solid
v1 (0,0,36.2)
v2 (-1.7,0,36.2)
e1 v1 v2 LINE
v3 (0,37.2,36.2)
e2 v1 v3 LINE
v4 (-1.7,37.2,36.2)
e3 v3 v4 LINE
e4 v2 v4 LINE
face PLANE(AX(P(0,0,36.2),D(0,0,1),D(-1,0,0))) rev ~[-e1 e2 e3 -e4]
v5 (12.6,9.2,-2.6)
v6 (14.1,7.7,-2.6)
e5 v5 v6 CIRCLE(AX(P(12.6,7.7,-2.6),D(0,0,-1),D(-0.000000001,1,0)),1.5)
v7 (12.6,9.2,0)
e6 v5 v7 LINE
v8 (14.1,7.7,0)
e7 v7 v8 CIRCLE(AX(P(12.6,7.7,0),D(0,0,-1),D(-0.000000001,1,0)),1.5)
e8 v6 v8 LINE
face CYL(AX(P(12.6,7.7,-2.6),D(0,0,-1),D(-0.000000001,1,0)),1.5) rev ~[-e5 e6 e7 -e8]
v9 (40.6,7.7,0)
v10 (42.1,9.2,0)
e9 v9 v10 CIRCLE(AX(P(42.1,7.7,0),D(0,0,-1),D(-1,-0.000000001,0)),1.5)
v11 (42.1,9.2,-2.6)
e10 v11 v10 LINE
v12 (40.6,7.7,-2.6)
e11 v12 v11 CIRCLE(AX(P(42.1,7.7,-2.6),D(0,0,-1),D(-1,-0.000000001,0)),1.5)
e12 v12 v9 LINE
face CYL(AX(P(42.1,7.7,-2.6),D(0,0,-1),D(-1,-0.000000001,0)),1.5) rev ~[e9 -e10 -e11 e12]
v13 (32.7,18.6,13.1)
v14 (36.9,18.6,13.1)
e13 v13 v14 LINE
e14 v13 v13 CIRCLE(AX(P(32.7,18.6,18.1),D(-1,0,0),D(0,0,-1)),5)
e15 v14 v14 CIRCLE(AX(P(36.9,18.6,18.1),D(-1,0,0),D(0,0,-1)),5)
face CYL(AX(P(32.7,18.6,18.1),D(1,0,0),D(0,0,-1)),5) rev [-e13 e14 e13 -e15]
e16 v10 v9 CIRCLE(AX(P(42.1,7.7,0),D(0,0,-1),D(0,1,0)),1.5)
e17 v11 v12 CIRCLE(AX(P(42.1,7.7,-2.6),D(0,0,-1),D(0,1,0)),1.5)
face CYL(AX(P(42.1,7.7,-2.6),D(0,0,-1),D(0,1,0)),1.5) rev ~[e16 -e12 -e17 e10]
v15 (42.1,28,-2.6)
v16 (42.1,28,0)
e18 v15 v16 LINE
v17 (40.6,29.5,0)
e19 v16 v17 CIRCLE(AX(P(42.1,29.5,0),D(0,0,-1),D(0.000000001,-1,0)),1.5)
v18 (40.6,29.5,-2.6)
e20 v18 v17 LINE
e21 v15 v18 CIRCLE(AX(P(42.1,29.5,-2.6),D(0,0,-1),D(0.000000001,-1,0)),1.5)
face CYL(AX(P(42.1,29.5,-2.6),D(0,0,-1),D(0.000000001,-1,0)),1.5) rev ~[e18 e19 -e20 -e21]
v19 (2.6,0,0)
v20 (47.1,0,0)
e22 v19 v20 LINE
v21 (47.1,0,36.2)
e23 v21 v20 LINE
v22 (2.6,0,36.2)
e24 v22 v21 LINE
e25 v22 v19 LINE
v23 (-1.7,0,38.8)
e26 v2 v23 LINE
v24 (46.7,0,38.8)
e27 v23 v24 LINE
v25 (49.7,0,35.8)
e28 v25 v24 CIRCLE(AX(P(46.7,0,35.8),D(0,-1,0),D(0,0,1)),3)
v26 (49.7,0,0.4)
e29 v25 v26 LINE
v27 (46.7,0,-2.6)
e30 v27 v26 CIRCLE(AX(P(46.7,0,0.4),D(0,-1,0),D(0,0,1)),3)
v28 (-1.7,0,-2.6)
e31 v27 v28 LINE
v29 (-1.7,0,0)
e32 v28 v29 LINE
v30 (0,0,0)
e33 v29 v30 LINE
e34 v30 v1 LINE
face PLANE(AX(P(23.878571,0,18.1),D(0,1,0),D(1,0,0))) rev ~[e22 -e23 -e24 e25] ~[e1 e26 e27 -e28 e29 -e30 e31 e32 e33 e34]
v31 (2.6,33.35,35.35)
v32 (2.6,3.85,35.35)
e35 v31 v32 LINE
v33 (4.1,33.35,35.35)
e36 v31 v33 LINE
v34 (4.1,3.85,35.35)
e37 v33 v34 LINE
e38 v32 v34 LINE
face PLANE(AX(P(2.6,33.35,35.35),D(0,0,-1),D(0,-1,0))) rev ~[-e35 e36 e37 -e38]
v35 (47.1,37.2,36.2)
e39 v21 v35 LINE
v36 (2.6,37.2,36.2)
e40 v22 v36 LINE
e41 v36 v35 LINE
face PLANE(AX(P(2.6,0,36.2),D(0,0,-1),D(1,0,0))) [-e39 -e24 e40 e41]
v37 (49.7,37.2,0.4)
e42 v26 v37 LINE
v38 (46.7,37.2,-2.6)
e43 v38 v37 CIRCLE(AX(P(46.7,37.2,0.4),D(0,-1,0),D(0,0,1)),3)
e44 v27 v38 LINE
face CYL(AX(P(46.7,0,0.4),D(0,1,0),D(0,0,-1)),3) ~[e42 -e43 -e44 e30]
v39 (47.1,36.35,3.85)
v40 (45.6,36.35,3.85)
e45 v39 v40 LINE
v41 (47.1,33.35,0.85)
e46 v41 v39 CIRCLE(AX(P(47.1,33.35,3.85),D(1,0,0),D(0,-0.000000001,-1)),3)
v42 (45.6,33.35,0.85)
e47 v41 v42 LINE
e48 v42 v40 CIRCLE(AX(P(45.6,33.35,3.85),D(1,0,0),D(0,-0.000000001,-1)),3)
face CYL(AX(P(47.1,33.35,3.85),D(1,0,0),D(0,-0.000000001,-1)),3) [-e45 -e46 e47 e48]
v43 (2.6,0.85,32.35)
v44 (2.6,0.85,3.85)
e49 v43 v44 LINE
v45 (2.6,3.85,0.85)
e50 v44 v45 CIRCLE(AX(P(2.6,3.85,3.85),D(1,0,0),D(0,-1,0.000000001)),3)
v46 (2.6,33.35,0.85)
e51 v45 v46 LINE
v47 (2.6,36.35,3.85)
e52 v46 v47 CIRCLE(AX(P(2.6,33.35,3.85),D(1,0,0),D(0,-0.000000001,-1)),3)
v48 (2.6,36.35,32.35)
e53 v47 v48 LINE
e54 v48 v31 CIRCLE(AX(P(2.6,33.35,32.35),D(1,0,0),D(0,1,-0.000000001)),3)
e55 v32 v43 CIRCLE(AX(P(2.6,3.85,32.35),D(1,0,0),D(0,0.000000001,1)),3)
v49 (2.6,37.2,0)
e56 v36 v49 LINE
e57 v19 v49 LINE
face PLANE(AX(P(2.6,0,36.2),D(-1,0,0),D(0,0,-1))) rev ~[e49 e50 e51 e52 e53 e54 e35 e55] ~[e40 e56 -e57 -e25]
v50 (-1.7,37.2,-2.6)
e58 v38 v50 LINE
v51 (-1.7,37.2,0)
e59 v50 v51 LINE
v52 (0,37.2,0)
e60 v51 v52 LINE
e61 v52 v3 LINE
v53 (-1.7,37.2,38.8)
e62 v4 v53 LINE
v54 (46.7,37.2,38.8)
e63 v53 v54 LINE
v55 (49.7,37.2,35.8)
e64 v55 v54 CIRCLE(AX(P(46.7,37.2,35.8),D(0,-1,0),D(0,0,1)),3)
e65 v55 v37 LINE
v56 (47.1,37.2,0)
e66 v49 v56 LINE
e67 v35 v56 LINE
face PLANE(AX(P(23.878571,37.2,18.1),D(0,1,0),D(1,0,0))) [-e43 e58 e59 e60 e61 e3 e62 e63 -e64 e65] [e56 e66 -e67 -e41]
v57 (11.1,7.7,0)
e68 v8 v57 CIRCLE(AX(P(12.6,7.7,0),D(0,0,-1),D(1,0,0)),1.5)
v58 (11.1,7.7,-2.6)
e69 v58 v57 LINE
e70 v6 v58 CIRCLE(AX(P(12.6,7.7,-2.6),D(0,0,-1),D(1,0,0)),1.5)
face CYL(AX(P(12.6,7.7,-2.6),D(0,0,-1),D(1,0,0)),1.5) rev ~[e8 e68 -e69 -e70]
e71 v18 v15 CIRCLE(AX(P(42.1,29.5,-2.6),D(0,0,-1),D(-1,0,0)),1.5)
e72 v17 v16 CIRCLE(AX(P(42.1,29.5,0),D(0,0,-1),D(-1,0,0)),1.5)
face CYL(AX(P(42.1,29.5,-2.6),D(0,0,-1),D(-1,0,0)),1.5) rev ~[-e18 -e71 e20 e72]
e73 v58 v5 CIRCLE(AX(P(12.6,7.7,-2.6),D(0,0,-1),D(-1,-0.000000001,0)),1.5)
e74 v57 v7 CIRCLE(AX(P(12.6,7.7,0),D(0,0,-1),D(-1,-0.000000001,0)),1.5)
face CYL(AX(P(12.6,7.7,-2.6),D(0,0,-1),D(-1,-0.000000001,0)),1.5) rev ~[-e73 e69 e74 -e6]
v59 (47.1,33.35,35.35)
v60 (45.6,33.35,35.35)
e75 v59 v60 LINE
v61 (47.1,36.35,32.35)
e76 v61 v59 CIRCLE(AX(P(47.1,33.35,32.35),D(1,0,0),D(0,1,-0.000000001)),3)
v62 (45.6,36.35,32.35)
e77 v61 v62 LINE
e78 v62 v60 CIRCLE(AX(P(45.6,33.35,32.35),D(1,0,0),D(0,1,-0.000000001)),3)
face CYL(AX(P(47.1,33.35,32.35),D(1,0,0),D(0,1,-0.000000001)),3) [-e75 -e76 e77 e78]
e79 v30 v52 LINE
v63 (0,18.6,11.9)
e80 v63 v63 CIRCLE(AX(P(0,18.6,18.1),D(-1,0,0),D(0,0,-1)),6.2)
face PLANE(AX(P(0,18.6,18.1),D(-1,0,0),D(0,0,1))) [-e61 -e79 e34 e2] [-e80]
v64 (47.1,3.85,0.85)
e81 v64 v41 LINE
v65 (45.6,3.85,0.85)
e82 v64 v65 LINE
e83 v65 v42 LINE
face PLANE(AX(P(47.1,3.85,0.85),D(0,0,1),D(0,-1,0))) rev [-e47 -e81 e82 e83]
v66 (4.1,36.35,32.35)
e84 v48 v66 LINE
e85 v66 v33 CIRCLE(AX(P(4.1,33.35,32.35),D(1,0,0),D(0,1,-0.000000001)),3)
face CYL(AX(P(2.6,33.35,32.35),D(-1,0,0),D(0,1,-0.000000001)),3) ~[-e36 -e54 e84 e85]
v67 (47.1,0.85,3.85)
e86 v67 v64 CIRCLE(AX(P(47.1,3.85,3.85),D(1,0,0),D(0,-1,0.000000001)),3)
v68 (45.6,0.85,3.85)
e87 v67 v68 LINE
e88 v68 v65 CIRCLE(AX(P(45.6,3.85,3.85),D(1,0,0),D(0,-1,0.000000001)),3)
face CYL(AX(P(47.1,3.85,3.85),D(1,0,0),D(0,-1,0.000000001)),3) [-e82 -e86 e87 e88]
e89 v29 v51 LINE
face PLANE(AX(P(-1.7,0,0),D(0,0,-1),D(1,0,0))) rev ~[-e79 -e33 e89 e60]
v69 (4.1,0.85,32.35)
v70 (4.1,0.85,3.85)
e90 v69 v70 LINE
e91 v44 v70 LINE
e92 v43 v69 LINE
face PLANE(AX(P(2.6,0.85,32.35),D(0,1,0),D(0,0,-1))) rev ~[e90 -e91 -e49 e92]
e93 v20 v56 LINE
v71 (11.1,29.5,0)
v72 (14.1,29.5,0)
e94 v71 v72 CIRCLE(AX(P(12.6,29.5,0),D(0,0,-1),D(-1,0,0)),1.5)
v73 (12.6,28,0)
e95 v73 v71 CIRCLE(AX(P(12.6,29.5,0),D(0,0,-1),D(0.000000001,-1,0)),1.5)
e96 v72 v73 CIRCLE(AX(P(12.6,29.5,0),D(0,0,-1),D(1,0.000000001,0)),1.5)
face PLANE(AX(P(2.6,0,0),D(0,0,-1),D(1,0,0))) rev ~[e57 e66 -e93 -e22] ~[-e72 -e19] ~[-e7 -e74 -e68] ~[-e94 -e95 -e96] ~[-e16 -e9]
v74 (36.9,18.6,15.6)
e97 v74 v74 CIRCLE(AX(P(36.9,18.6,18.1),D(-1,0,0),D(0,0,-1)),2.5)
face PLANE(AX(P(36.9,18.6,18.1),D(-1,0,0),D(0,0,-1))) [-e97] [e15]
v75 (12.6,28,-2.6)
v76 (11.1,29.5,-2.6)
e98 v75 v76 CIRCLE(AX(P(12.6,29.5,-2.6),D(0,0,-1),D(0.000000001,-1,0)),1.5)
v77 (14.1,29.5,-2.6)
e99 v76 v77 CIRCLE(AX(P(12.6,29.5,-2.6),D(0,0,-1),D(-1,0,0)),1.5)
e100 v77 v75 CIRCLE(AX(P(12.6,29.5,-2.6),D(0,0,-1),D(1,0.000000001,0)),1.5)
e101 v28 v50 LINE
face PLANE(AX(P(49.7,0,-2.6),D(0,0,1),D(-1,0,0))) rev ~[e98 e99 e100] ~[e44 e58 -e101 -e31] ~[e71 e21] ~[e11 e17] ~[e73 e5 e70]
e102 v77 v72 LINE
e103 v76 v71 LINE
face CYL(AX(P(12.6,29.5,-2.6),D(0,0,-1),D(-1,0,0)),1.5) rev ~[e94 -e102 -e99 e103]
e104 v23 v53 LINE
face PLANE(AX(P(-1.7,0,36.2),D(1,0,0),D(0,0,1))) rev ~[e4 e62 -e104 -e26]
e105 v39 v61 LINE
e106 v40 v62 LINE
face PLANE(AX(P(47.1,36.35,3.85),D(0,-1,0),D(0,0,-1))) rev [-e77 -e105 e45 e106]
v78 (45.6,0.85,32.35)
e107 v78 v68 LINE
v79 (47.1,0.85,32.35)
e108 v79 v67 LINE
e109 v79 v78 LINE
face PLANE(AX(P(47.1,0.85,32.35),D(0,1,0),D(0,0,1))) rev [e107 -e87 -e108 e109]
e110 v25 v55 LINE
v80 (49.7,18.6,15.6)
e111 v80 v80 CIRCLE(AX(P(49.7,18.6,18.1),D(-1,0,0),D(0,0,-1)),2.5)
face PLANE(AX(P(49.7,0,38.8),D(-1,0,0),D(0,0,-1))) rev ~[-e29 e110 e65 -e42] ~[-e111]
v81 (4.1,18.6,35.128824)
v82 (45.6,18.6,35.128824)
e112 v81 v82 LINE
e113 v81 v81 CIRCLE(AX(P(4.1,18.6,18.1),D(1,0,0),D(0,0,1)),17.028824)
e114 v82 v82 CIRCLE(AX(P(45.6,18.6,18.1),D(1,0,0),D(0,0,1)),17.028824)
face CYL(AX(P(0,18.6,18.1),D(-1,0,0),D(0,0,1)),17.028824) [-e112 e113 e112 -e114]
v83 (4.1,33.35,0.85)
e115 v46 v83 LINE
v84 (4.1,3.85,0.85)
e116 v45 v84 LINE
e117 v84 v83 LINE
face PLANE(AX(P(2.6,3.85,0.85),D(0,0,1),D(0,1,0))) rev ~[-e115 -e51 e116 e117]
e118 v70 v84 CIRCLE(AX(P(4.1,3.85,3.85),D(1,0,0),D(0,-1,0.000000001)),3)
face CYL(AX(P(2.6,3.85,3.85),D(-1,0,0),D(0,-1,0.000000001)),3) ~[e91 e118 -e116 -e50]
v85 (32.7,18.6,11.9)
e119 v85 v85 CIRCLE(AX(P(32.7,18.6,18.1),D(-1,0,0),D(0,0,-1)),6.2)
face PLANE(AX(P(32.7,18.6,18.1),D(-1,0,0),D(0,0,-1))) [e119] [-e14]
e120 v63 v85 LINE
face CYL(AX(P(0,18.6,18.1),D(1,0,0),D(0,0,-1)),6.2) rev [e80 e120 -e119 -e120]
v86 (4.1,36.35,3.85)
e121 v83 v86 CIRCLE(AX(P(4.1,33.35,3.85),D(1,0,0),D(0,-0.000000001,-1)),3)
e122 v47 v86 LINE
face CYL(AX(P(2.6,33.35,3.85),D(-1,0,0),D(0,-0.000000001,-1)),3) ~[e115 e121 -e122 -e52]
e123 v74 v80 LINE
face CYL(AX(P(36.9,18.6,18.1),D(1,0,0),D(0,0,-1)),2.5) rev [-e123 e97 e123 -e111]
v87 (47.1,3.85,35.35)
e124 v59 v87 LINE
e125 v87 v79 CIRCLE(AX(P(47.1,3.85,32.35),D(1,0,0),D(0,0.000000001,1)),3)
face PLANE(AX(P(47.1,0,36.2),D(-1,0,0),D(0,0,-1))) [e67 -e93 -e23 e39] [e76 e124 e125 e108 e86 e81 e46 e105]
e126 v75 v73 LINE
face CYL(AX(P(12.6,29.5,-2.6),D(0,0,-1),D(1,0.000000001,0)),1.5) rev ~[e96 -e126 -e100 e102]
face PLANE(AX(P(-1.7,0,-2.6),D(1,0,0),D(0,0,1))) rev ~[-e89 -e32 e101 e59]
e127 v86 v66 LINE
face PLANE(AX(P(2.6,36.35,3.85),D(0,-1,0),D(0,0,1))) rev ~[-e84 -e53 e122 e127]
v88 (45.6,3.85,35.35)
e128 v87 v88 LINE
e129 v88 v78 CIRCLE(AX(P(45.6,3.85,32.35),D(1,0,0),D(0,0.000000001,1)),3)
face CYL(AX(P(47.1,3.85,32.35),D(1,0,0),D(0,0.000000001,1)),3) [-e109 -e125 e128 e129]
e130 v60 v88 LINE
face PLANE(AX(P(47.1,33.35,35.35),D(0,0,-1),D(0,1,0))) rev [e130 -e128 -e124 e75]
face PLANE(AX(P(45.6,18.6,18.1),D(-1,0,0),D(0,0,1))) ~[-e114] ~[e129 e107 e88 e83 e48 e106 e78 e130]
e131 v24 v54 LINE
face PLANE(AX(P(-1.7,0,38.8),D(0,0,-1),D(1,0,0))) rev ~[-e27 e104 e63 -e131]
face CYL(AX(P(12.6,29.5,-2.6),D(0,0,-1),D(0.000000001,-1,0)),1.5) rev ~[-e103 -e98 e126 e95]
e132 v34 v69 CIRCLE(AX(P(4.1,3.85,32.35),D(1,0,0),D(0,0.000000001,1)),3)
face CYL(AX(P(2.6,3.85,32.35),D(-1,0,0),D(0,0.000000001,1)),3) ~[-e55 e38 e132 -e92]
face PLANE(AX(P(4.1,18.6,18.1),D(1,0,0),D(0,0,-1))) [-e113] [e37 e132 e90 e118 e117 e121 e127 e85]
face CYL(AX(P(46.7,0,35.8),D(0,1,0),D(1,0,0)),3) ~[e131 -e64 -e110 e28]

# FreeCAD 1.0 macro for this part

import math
import FreeCAD as App
import Part
import Sketcher
from FreeCAD import Vector


def edges_at(feature, points):
    """Names of the edges that pass closest to the given points."""
    edges = feature.Shape.Edges
    near = lambda p: min(range(len(edges)), key=lambda i: edges[i].distToShape(Part.Vertex(*p))[0])
    return sorted({f"Edge{near(p) + 1}" for p in points})


def add_polygon(sketch, points):
    """Adds a closed chain of lines whose ends are joined by coincident constraints."""
    first, n = sketch.GeometryCount, len(points)
    for a, b in zip(points, points[1:] + points[:1]):
        sketch.addGeometry(Part.LineSegment(App.Vector(*a, 0), App.Vector(*b, 0)), False)
    for i in range(n):
        sketch.addConstraint(Sketcher.Constraint("Coincident", first + i, 2, first + (i + 1) % n, 1))

doc = App.newDocument("Part")
body = doc.addObject("PartDesign::Body", "Body")

sketch1 = body.newObject("Sketcher::SketchObject", "Sketch")
sketch1.AttachmentSupport = (doc.getObject("XZ_Plane"), [""])
sketch1.MapMode = "FlatFace"
add_polygon(sketch1, [(0, 0), (0, 36.2), (-1.7, 36.2), (-1.7, 38.8), (49.7, 38.8), (49.7, -2.6), (-1.7, -2.6), (-1.7, 0)])
add_polygon(sketch1, [(47.1, 36.2), (2.6, 36.2), (2.6, 0), (47.1, 0)])
sketch1.addConstraint([
    Sketcher.Constraint("Vertical", 0),
    Sketcher.Constraint("Horizontal", 1),
    Sketcher.Constraint("Vertical", 2),
    Sketcher.Constraint("Horizontal", 3),
    Sketcher.Constraint("Vertical", 4),
    Sketcher.Constraint("Horizontal", 5),
    Sketcher.Constraint("Vertical", 6),
    Sketcher.Constraint("Horizontal", 7),
    Sketcher.Constraint("Horizontal", 8),
    Sketcher.Constraint("Vertical", 9),
    Sketcher.Constraint("Horizontal", 10),
    Sketcher.Constraint("Vertical", 11),
    Sketcher.Constraint("Coincident", 7, 2, -1, 1),
    Sketcher.Constraint("PointOnObject", 9, 2, -1),
    Sketcher.Constraint("Horizontal", 1, 2, 8, 2),
    Sketcher.Constraint("Vertical", 2, 2, 5, 2),
    Sketcher.Constraint("Equal", 2, 6),
    Sketcher.Constraint("DistanceX", 1, 2, 1, 1, 1.7),
    Sketcher.Constraint("DistanceX", 3, 1, 3, 2, 51.4),
    Sketcher.Constraint("DistanceX", 8, 2, 8, 1, 44.5),
    Sketcher.Constraint("DistanceY", 0, 1, 0, 2, 36.2),
    Sketcher.Constraint("DistanceY", 2, 1, 2, 2, 2.6),
    Sketcher.Constraint("DistanceX", -1, 1, 8, 2, 2.6),
])
pad1 = body.newObject("PartDesign::Pad", "Pad")
pad1.Profile = sketch1
pad1.Length = 37.2
pad1.Reversed = True

sketch2 = body.newObject("Sketcher::SketchObject", "Sketch001")
sketch2.AttachmentSupport = (doc.getObject("YZ_Plane"), [""])
sketch2.MapMode = "FlatFace"
sketch2.addGeometry(Part.Circle(Vector(19, 18, 0), Vector(0, 0, 1), 17), False)
sketch2.addConstraint([
    Sketcher.Constraint("DistanceX", -1, 1, 0, 3, 18.6),
    Sketcher.Constraint("DistanceY", -1, 1, 0, 3, 18.1),
    Sketcher.Constraint("Diameter", 0, 34.057647),
])
pad2 = body.newObject("PartDesign::Pad", "Pad001")
pad2.Profile = sketch2
pad2.Length = 47.1

sketch3 = body.newObject("Sketcher::SketchObject", "Sketch002")
sketch3.AttachmentSupport = (doc.getObject("YZ_Plane"), [""])
sketch3.MapMode = "FlatFace"
sketch3.AttachmentOffset = App.Placement(Vector(0, 0, 2.6), App.Rotation())
sketch3.addGeometry([
    Part.LineSegment(Vector(3.9, 0.8, 0), Vector(33.4, 0.8, 0)),
    Part.ArcOfCircle(Part.Circle(Vector(33.4, 3.8, 0), Vector(0, 0, 1), 3), math.radians(-90), math.radians(0)),
    Part.LineSegment(Vector(36.4, 3.9, 0), Vector(36.4, 32.4, 0)),
    Part.ArcOfCircle(Part.Circle(Vector(33.4, 32.4, 0), Vector(0, 0, 1), 3), math.radians(0), math.radians(90)),
    Part.LineSegment(Vector(33.4, 35.4, 0), Vector(3.9, 35.4, 0)),
    Part.ArcOfCircle(Part.Circle(Vector(3.8, 32.4, 0), Vector(0, 0, 1), 3), math.radians(90), math.radians(180)),
    Part.LineSegment(Vector(0.8, 32.4, 0), Vector(0.8, 3.9, 0)),
    Part.ArcOfCircle(Part.Circle(Vector(3.8, 3.8, 0), Vector(0, 0, 1), 3), math.radians(180), math.radians(270)),
    Part.Circle(Vector(18.6, 18.1, 0), Vector(0, 0, 1), 17),
], False)
sketch3.addConstraint([
    Sketcher.Constraint("Tangent", 0, 2, 1, 1),
    Sketcher.Constraint("Tangent", 1, 2, 2, 1),
    Sketcher.Constraint("Tangent", 2, 2, 3, 1),
    Sketcher.Constraint("Tangent", 3, 2, 4, 1),
    Sketcher.Constraint("Tangent", 4, 2, 5, 1),
    Sketcher.Constraint("Tangent", 5, 2, 6, 1),
    Sketcher.Constraint("Tangent", 6, 2, 7, 1),
    Sketcher.Constraint("Tangent", 7, 2, 0, 1),
    Sketcher.Constraint("Horizontal", 0),
    Sketcher.Constraint("Vertical", 2),
    Sketcher.Constraint("Horizontal", 4),
    Sketcher.Constraint("Vertical", 6),
    Sketcher.Constraint("Equal", 1, 3),
    Sketcher.Constraint("Equal", 3, 5),
    Sketcher.Constraint("Equal", 5, 7),
    Sketcher.Constraint("Radius", 1, 3.0),
    Sketcher.Constraint("DistanceX", 0, 1, 0, 2, 29.5),
    Sketcher.Constraint("DistanceY", 2, 1, 2, 2, 28.5),
    Sketcher.Constraint("DistanceX", -1, 1, 8, 3, 18.6),
    Sketcher.Constraint("DistanceY", -1, 1, 8, 3, 18.1),
    Sketcher.Constraint("DistanceX", -1, 1, 1, 3, 33.35),
    Sketcher.Constraint("DistanceY", -1, 1, 1, 3, 3.85),
    Sketcher.Constraint("Diameter", 8, 34.057647),
])
pad3 = body.newObject("PartDesign::Pad", "Pad002")
pad3.Profile = sketch3
pad3.Length = 1.5
doc.recompute()

datumplane = body.newObject("PartDesign::Plane", "DatumPlane")
datumplane.AttachmentSupport = (doc.getObject("YZ_Plane"), [""])
datumplane.MapMode = "FlatFace"
datumplane.AttachmentOffset = App.Placement(Vector(0, 0, 24.85), App.Rotation())
mirrored = body.newObject("PartDesign::Mirrored", "Mirrored")
mirrored.Originals = [pad3]
mirrored.MirrorPlane = (datumplane, [""])
body.Tip = mirrored

sketch4 = body.newObject("Sketcher::SketchObject", "Sketch003")
sketch4.AttachmentSupport = (doc.getObject("XZ_Plane"), [""])
sketch4.MapMode = "FlatFace"
sketch4.AttachmentOffset = App.Placement(Vector(0, 0, -18.6), App.Rotation())
add_polygon(sketch4, [(0, 18.1), (49.7, 18.1), (49.7, 15.6), (36.9, 15.6), (36.9, 13.1), (32.7, 13.1), (32.7, 11.9), (0, 11.9)])
sketch4.addGeometry(Part.LineSegment(Vector(49.7, 18.1, 0), Vector(0, 18.1, 0)), True)
sketch4.addConstraint([
    Sketcher.Constraint("Horizontal", 0),
    Sketcher.Constraint("Vertical", 1),
    Sketcher.Constraint("Horizontal", 2),
    Sketcher.Constraint("Vertical", 3),
    Sketcher.Constraint("Horizontal", 4),
    Sketcher.Constraint("Vertical", 5),
    Sketcher.Constraint("Horizontal", 6),
    Sketcher.Constraint("Vertical", 7),
    Sketcher.Constraint("Horizontal", 8),
    Sketcher.Constraint("Coincident", 8, 1, 0, 2),
    Sketcher.Constraint("PointOnObject", 6, 2, -2),
    Sketcher.Constraint("PointOnObject", 8, 2, -2),
    Sketcher.Constraint("Equal", 1, 3),
    Sketcher.Constraint("DistanceX", 0, 1, 0, 2, 49.7),
    Sketcher.Constraint("DistanceX", 2, 2, 2, 1, 12.8),
    Sketcher.Constraint("DistanceX", 4, 2, 4, 1, 4.2),
    Sketcher.Constraint("DistanceY", 1, 2, 1, 1, 2.5),
    Sketcher.Constraint("DistanceY", 5, 2, 5, 1, 1.2),
    Sketcher.Constraint("DistanceY", -1, 1, 0, 2, 18.1),
])
groove = body.newObject("PartDesign::Groove", "Groove")
groove.Profile = sketch4
groove.ReferenceAxis = (sketch4, ["Axis0"])
groove.Angle = 360
doc.recompute()

fillet = body.newObject("PartDesign::Fillet", "Fillet")
fillet.Base = (groove, edges_at(groove, [(49.7, 18.6, -2.6)]))
fillet.Radius = 3
doc.recompute()

fillet2 = body.newObject("PartDesign::Fillet", "Fillet001")
fillet2.Base = (fillet, edges_at(fillet, [(49.7, 18.6, 38.8)]))
fillet2.Radius = 3

sketch5 = body.newObject("Sketcher::SketchObject", "Sketch004")
sketch5.AttachmentSupport = (doc.getObject("XY_Plane"), [""])
sketch5.MapMode = "FlatFace"
sketch5.AttachmentOffset = App.Placement(Vector(0, 0, -2.6), App.Rotation())
sketch5.addGeometry([
    Part.ArcOfCircle(Part.Circle(Vector(42.1, 29.5, 0), Vector(0, 0, 1), 1.5), math.radians(-90), math.radians(180)),
    Part.ArcOfCircle(Part.Circle(Vector(42.1, 29.5, 0), Vector(0, 0, 1), 1.5), math.radians(180), math.radians(270)),
    Part.ArcOfCircle(Part.Circle(Vector(42.1, 7.7, 0), Vector(0, 0, 1), 1.5), math.radians(90), math.radians(180)),
    Part.ArcOfCircle(Part.Circle(Vector(42.1, 7.7, 0), Vector(0, 0, 1), 1.5), math.radians(180), math.radians(450)),
    Part.ArcOfCircle(Part.Circle(Vector(12.6, 7.7, 0), Vector(0, 0, 1), 1.5), math.radians(90), math.radians(180)),
    Part.ArcOfCircle(Part.Circle(Vector(12.6, 7.7, 0), Vector(0, 0, 1), 1.5), math.radians(0), math.radians(90)),
    Part.ArcOfCircle(Part.Circle(Vector(12.6, 7.7, 0), Vector(0, 0, 1), 1.5), math.radians(180), math.radians(360)),
    Part.ArcOfCircle(Part.Circle(Vector(12.6, 29.5, 0), Vector(0, 0, 1), 1.5), math.radians(0), math.radians(180)),
    Part.ArcOfCircle(Part.Circle(Vector(12.6, 29.5, 0), Vector(0, 0, 1), 1.5), math.radians(-90), math.radians(0)),
    Part.ArcOfCircle(Part.Circle(Vector(12.6, 29.5, 0), Vector(0, 0, 1), 1.5), math.radians(180), math.radians(270)),
], False)
sketch5.addConstraint([
    Sketcher.Constraint("Tangent", 0, 1, 1, 2),
    Sketcher.Constraint("Coincident", 1, 1, 0, 2),
    Sketcher.Constraint("Tangent", 2, 1, 3, 2),
    Sketcher.Constraint("Coincident", 3, 1, 2, 2),
    Sketcher.Constraint("Tangent", 4, 1, 5, 2),
    Sketcher.Constraint("Tangent", 5, 1, 6, 2),
    Sketcher.Constraint("Tangent", 6, 1, 4, 2),
    Sketcher.Constraint("Tangent", 7, 1, 8, 2),
    Sketcher.Constraint("Tangent", 8, 1, 9, 2),
    Sketcher.Constraint("Tangent", 9, 1, 7, 2),
    Sketcher.Constraint("Equal", 1, 2),
    Sketcher.Constraint("Equal", 3, 4),
    Sketcher.Constraint("Equal", 6, 7),
    Sketcher.Constraint("Horizontal", 3, 3, 4, 3),
    Sketcher.Constraint("Horizontal", 1, 3, 7, 3),
    Sketcher.Constraint("Horizontal", 9, 3, 1, 1),
    Sketcher.Constraint("Horizontal", 6, 3, 3, 1),
    Sketcher.Constraint("Horizontal", 3, 1, 5, 1),
    Sketcher.Constraint("Horizontal", 5, 1, 6, 1),
    Sketcher.Constraint("Horizontal", 1, 1, 7, 1),
    Sketcher.Constraint("Horizontal", 7, 1, 9, 1),
    Sketcher.Constraint("Vertical", 1, 3, 2, 3),
    Sketcher.Constraint("Vertical", 6, 3, 7, 3),
    Sketcher.Constraint("Vertical", 3, 3, 0, 1),
    Sketcher.Constraint("Vertical", 0, 1, 2, 1),
    Sketcher.Constraint("Vertical", 9, 3, 4, 1),
    Sketcher.Constraint("Vertical", 4, 1, 8, 1),
    Sketcher.Constraint("Radius", 0, 1.5),
    Sketcher.Constraint("DistanceY", -1, 1, 0, 1, 28.0),
    Sketcher.Constraint("DistanceX", -1, 1, 0, 3, 42.1),
    Sketcher.Constraint("DistanceY", -1, 1, 2, 3, 7.7),
    Sketcher.Constraint("DistanceX", -1, 1, 4, 3, 12.6),
])
pocket1 = body.newObject("PartDesign::Pocket", "Pocket")
pocket1.Profile = sketch5
pocket1.Length = 2.6
pocket1.Reversed = True

doc.recompute()
